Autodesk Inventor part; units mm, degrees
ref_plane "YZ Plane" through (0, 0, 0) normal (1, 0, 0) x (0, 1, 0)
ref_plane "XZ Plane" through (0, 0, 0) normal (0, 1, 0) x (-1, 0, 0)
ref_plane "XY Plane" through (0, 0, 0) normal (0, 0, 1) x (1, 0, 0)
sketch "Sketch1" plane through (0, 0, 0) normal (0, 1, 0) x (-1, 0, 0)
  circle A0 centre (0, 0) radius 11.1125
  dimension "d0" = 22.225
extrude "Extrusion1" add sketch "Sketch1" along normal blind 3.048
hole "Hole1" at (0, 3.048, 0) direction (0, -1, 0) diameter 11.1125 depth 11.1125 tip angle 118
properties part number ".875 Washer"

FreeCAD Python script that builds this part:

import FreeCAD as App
import Part
import Sketcher
from FreeCAD import Vector
Q = App.Units.Quantity

doc = App.newDocument("Part")
params = doc.addObject("Spreadsheet::Sheet", "Params")
for row, (alias, value) in enumerate([
    ("sketch1_diameter", "0.875 in"),
    ("pad1_length", "0.12 in"),
    ("sketch2_diameter", "0.4375 in"),
    ("hole_diameter", "0.4375 in"),
    ("hole_depth", "0.4375 in"),
], start=1):
    params.set(f"A{row}", alias)
    params.set(f"B{row}", "=" + value)
    params.setAlias(f"B{row}", alias)

body = doc.addObject("PartDesign::Body", "Body")

# Sketch on XZ plane
sketch1 = body.newObject("Sketcher::SketchObject", "Sketch")
sketch1.AttachmentSupport = (doc.getObject("XZ_Plane"), [""])
sketch1.MapMode = "FlatFace"
sketch1.addGeometry(Part.Circle(Vector(0, 0, 0), Vector(0, 0, 1), 11), False)
sketch1.addConstraint(Sketcher.Constraint("Coincident", 0, 3, -1, 1))
sketch1.addConstraint(Sketcher.Constraint("Diameter", 0, Q("0.875 in")))
sketch1.setExpression("Constraints[1]", "Params.sketch1_diameter")
pad1 = body.newObject("PartDesign::Pad", "Pad")
pad1.Profile = sketch1
pad1.setExpression("Length", "Params.pad1_length")
pad1.Reversed = True

# Sketch on XZ plane
sketch2 = body.newObject("Sketcher::SketchObject", "Sketch001")
sketch2.AttachmentSupport = (doc.getObject("XZ_Plane"), [""])
sketch2.MapMode = "FlatFace"
sketch2.AttachmentOffset = App.Placement(Vector(0, 0, -0.12 * 25.4), App.Rotation())
sketch2.addGeometry(Part.Circle(Vector(0, 0, 0), Vector(0, 0, 1), 6), False)
sketch2.addConstraint(Sketcher.Constraint("Coincident", 0, 3, -1, 1))
sketch2.addConstraint(Sketcher.Constraint("Diameter", 0, Q("0.4375 in")))
sketch2.setExpression("Constraints[1]", "Params.sketch2_diameter")
doc.recompute()
hole = body.newObject("PartDesign::Hole", "Hole")
hole.Profile = sketch2
hole.ThreadType = "None"
hole.setExpression("Diameter", "Params.hole_diameter")
hole.DepthType = "Dimension"
hole.setExpression("Depth", "Params.hole_depth")
hole.DrillPoint = "Angled"
hole.DrillPointAngle = 118
hole.Reversed = True

doc.recompute()
